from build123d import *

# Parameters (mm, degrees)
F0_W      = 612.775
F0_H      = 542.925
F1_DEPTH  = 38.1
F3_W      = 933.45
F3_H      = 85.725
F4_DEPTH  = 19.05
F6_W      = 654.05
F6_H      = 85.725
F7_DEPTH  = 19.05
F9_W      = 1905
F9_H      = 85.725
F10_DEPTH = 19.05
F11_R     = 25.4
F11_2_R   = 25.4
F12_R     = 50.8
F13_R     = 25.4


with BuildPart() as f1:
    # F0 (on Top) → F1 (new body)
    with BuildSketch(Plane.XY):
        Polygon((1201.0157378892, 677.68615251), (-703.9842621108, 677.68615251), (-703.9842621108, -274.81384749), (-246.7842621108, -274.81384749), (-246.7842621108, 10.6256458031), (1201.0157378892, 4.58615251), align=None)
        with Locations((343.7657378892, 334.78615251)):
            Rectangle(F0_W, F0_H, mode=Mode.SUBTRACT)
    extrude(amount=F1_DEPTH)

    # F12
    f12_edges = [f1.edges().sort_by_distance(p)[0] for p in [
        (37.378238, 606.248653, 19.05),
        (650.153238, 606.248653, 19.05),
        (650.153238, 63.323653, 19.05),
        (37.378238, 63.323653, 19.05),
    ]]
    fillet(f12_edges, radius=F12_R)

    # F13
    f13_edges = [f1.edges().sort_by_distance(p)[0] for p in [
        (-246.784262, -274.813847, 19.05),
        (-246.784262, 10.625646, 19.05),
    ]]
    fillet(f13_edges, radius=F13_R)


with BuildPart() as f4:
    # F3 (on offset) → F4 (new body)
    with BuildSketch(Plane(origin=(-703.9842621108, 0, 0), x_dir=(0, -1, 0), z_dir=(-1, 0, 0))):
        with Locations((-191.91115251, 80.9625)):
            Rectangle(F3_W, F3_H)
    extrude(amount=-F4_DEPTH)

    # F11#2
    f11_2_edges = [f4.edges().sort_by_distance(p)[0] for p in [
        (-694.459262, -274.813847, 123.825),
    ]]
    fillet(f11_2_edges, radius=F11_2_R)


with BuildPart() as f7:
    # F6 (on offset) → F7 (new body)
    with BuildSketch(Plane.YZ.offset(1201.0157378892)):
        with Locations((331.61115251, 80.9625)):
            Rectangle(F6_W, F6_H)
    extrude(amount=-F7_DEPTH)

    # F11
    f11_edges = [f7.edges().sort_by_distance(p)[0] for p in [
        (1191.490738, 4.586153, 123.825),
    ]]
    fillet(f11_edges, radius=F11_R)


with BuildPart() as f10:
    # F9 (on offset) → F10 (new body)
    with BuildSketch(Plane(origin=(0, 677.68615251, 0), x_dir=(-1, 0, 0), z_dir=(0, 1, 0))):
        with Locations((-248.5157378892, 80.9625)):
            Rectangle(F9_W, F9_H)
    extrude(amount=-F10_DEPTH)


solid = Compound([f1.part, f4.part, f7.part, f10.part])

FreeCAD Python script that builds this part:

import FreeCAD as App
import Part
import Sketcher
Q = App.Units.Quantity


def edges_at(feature, points):
    """Names of the edges that pass closest to the given points."""
    edges = feature.Shape.Edges
    near = lambda p: min(range(len(edges)), key=lambda i: edges[i].distToShape(Part.Vertex(*p))[0])
    return sorted({f"Edge{near(p) + 1}" for p in points})


def add_polygon(sketch, points):
    """Adds a closed chain of lines whose ends are joined by coincident constraints."""
    first, n = sketch.GeometryCount, len(points)
    for a, b in zip(points, points[1:] + points[:1]):
        sketch.addGeometry(Part.LineSegment(App.Vector(*a, 0), App.Vector(*b, 0)), False)
    for i in range(n):
        sketch.addConstraint(Sketcher.Constraint("Coincident", first + i, 2, first + (i + 1) % n, 1))

doc = App.newDocument("Part")
body = doc.addObject("PartDesign::Body", "Body")

sketch1 = body.newObject("Sketcher::SketchObject", "Sketch")
sketch1.AttachmentSupport = (doc.getObject("XY_Plane"), [""])
sketch1.MapMode = "FlatFace"
add_polygon(sketch1, [(1201, 678), (-704, 678), (-704, -275), (-247, -275), (-247, 11), (1201, 5)])
add_polygon(sketch1, [(650, 63), (37, 63), (37, 606), (650, 606)])
sketch1.addConstraint(Sketcher.Constraint("Horizontal", 0))
sketch1.addConstraint(Sketcher.Constraint("Vertical", 1))
sketch1.addConstraint(Sketcher.Constraint("Horizontal", 2))
sketch1.addConstraint(Sketcher.Constraint("Vertical", 3))
sketch1.addConstraint(Sketcher.Constraint("Vertical", 5))
sketch1.addConstraint(Sketcher.Constraint("Horizontal", 6))
sketch1.addConstraint(Sketcher.Constraint("Vertical", 7))
sketch1.addConstraint(Sketcher.Constraint("Horizontal", 8))
sketch1.addConstraint(Sketcher.Constraint("Vertical", 9))
sketch1.addConstraint(Sketcher.Constraint("DistanceX", 0, 2, 0, 1, Q("75 in")))
sketch1.addConstraint(Sketcher.Constraint("DistanceX", 2, 1, 2, 2, Q("18 in")))
sketch1.addConstraint(Sketcher.Constraint("DistanceY", 1, 2, 1, 1, Q("37.5 in")))
sketch1.addConstraint(Sketcher.Constraint("DistanceY", 5, 1, 5, 2, Q("26.5 in")))
sketch1.addConstraint(Sketcher.Constraint("DistanceX", 6, 2, 6, 1, Q("24.125 in")))
sketch1.addConstraint(Sketcher.Constraint("DistanceY", 7, 1, 7, 2, Q("21.375 in")))
sketch1.addConstraint(Sketcher.Constraint("DistanceX", 3, 2, 6, 2, Q("11.1875 in")))
sketch1.addConstraint(Sketcher.Constraint("DistanceY", 2, 2, 6, 2, Q("13.3125 in")))
sketch1.addConstraint(Sketcher.Constraint("DistanceY", 3, 1, 3, 2, 285.439493))
sketch1.addConstraint(Sketcher.Constraint("DistanceX", 0, 2, -1, 1, 703.984262))
sketch1.addConstraint(Sketcher.Constraint("DistanceY", -1, 1, 0, 2, 677.686153))
pad1 = body.newObject("PartDesign::Pad", "Pad")
pad1.Profile = sketch1
pad1.Length = Q("1.5 in")
doc.recompute()

fillet = body.newObject("PartDesign::Fillet", "Fillet")
fillet.Base = (pad1, edges_at(pad1, [
    (37.378, 606.249, 19.05),
    (650.153, 606.249, 19.05),
    (650.153, 63.324, 19.05),
    (37.378, 63.324, 19.05),
]))
fillet.Radius = Q("2 in")
doc.recompute()

fillet2 = body.newObject("PartDesign::Fillet", "Fillet001")
fillet2.Base = (fillet, edges_at(fillet, [(-246.784, -274.814, 19.05), (-246.784, 10.626, 19.05)]))
fillet2.Radius = Q("1 in")
body2 = doc.addObject("PartDesign::Body", "Body001")

sketch2 = body2.newObject("Sketcher::SketchObject", "Sketch001")
sketch2.AttachmentSupport = (doc.getObject("YZ_Plane001"), [""])
sketch2.MapMode = "FlatFace"
sketch2.AttachmentOffset = App.Placement(App.Vector(0, 0, -703.984262), App.Rotation())
add_polygon(sketch2, [(659, 124), (659, 38), (-275, 38), (-275, 124)])
sketch2.addConstraint(Sketcher.Constraint("Vertical", 0))
sketch2.addConstraint(Sketcher.Constraint("Horizontal", 1))
sketch2.addConstraint(Sketcher.Constraint("Vertical", 2))
sketch2.addConstraint(Sketcher.Constraint("Horizontal", 3))
sketch2.addConstraint(Sketcher.Constraint("DistanceX", 1, 2, 1, 1, Q("36.75 in")))
sketch2.addConstraint(Sketcher.Constraint("DistanceY", -1, 1, 0, 2, Q("1.5 in")))
sketch2.addConstraint(Sketcher.Constraint("DistanceY", 0, 2, 0, 1, Q("3.375 in")))
sketch2.addConstraint(Sketcher.Constraint("DistanceX", -1, 1, 0, 2, 658.636153))
pad2 = body2.newObject("PartDesign::Pad", "Pad001")
pad2.Profile = sketch2
pad2.Length = Q("0.75 in")
doc.recompute()

fillet3 = body2.newObject("PartDesign::Fillet", "Fillet002")
fillet3.Base = (pad2, edges_at(pad2, [(-694.459, -274.814, 123.825)]))
fillet3.Radius = Q("1 in")
body3 = doc.addObject("PartDesign::Body", "Body002")

sketch3 = body3.newObject("Sketcher::SketchObject", "Sketch002")
sketch3.AttachmentSupport = (doc.getObject("YZ_Plane002"), [""])
sketch3.MapMode = "FlatFace"
sketch3.AttachmentOffset = App.Placement(App.Vector(0, 0, 1201.015738), App.Rotation())
add_polygon(sketch3, [(5, 124), (5, 38), (659, 38), (659, 124)])
sketch3.addConstraint(Sketcher.Constraint("Vertical", 0))
sketch3.addConstraint(Sketcher.Constraint("Horizontal", 1))
sketch3.addConstraint(Sketcher.Constraint("Vertical", 2))
sketch3.addConstraint(Sketcher.Constraint("Horizontal", 3))
sketch3.addConstraint(Sketcher.Constraint("DistanceX", 1, 1, 1, 2, Q("25.75 in")))
sketch3.addConstraint(Sketcher.Constraint("DistanceY", -1, 1, 0, 2, Q("1.5 in")))
sketch3.addConstraint(Sketcher.Constraint("DistanceY", 0, 2, 0, 1, Q("3.375 in")))
sketch3.addConstraint(Sketcher.Constraint("DistanceX", -1, 1, 0, 2, 4.586153))
pad3 = body3.newObject("PartDesign::Pad", "Pad002")
pad3.Profile = sketch3
pad3.Length = Q("0.75 in")
pad3.Reversed = True
doc.recompute()

fillet4 = body3.newObject("PartDesign::Fillet", "Fillet003")
fillet4.Base = (pad3, edges_at(pad3, [(1191.491, 4.586, 123.825)]))
fillet4.Radius = Q("1 in")
body4 = doc.addObject("PartDesign::Body", "Body003")

sketch4 = body4.newObject("Sketcher::SketchObject", "Sketch003")
sketch4.AttachmentSupport = (doc.getObject("XZ_Plane003"), [""])
sketch4.MapMode = "FlatFace"
sketch4.AttachmentOffset = App.Placement(App.Vector(0, 0, -677.686153), App.Rotation())
add_polygon(sketch4, [(1201, 124), (1201, 38), (-704, 38), (-704, 124)])
sketch4.addConstraint(Sketcher.Constraint("Vertical", 0))
sketch4.addConstraint(Sketcher.Constraint("Horizontal", 1))
sketch4.addConstraint(Sketcher.Constraint("Vertical", 2))
sketch4.addConstraint(Sketcher.Constraint("Horizontal", 3))
sketch4.addConstraint(Sketcher.Constraint("DistanceX", 1, 2, 1, 1, Q("75 in")))
sketch4.addConstraint(Sketcher.Constraint("DistanceY", -1, 1, 0, 2, Q("1.5 in")))
sketch4.addConstraint(Sketcher.Constraint("DistanceY", 0, 2, 0, 1, Q("3.375 in")))
sketch4.addConstraint(Sketcher.Constraint("DistanceX", -1, 1, 0, 2, 1201.015738))
pad4 = body4.newObject("PartDesign::Pad", "Pad003")
pad4.Profile = sketch4
pad4.Length = Q("0.75 in")

doc.recompute()
